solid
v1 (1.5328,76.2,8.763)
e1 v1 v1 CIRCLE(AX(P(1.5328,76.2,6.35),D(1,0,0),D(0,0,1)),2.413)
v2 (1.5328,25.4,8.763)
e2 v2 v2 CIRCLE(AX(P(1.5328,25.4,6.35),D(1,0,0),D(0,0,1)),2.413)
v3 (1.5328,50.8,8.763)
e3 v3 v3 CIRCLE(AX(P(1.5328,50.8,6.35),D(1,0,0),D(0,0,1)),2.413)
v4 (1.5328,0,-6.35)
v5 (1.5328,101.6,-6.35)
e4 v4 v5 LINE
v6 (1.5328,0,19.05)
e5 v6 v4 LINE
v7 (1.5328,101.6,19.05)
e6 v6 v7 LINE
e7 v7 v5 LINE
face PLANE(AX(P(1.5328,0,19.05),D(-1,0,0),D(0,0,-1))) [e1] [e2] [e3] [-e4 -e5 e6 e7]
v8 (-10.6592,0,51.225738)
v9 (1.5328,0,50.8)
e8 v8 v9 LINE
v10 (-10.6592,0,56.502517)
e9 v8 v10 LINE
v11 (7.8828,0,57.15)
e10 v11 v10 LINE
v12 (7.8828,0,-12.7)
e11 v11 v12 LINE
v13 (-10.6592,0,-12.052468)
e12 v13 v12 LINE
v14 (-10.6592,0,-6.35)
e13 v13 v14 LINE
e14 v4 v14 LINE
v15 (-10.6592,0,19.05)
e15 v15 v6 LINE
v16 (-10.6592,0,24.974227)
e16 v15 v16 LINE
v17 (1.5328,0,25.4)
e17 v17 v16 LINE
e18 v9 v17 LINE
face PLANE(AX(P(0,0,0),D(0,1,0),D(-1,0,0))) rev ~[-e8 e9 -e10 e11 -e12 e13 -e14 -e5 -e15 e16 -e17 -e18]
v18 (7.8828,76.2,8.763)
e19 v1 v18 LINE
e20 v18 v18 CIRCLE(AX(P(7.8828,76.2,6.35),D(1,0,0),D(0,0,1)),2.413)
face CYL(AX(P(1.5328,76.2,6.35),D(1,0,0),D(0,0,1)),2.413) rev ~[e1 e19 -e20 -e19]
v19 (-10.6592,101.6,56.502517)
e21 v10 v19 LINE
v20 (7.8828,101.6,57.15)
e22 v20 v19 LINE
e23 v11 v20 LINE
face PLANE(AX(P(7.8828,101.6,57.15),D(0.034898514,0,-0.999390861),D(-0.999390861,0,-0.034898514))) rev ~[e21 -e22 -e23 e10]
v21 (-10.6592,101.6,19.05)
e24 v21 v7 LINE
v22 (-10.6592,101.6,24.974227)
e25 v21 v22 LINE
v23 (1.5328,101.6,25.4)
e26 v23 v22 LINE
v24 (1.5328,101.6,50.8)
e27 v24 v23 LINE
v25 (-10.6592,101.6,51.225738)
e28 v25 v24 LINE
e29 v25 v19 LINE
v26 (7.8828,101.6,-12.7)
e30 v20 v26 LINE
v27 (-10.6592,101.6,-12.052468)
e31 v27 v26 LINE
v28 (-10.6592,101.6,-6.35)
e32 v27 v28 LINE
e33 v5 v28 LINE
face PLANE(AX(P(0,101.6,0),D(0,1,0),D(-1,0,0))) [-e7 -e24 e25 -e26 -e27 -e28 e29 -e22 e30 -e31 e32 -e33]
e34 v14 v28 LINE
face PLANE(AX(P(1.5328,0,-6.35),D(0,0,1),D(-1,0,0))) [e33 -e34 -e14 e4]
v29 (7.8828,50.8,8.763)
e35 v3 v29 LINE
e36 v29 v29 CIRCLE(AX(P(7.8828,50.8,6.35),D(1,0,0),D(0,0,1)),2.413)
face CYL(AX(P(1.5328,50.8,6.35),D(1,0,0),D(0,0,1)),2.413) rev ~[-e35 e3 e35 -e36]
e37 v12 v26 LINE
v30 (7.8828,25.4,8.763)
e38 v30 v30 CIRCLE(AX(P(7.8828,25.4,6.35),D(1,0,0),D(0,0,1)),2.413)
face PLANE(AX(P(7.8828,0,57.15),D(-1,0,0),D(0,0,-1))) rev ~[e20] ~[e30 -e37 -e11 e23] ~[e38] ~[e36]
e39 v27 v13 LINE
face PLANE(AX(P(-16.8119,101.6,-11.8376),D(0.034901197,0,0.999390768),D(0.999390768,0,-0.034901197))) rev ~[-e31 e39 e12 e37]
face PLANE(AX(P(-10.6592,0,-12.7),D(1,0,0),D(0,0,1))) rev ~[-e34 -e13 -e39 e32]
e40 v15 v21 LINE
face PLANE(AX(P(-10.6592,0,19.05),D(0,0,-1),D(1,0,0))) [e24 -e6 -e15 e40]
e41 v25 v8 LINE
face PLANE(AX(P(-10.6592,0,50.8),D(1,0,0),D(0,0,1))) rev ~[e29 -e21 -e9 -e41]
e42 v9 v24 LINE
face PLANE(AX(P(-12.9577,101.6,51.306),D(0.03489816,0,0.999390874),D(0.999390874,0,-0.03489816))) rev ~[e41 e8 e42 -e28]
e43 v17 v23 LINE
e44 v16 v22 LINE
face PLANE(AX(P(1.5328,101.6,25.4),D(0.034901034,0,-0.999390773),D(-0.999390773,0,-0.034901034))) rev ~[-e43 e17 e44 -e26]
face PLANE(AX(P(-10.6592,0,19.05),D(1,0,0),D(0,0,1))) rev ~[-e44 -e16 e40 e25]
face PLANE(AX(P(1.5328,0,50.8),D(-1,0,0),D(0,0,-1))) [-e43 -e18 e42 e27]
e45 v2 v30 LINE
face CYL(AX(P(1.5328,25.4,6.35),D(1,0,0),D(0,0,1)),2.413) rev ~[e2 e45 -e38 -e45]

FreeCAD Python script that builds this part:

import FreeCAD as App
import Part
import Sketcher
from FreeCAD import Vector
Q = App.Units.Quantity

doc = App.newDocument("Part")
params = doc.addObject("Spreadsheet::Sheet", "Params")
for row, (alias, value) in enumerate([
    ("sketch1_height", "1 in"),
    ("sketch1_width", "0.73 in"),
    ("sketch1_height2", "0.25 in"),
    ("pad1_length", "4 in"),
    ("sketch2_diameter", "0.19 in"),
    ("hole_diameter", "0.19 in"),
    ("hole_depth", "1 in"),
    ("pocket1_length", "4.375 in"),
    ("pocket2_length", "4.6875 in"),
    ("pocket3_length", "7.75 in"),
    ("pocket4_length", "13.1875 in"),
], start=1):
    params.set(f"A{row}", alias)
    params.set(f"B{row}", "=" + value)
    params.setAlias(f"B{row}", alias)

body = doc.addObject("PartDesign::Body", "Body")

# Sketch on XZ plane
sketch1 = doc.addObject("Sketcher::SketchObject", "Sketch")
body.addObject(sketch1)
sketch1.AttachmentSupport = (doc.XZ_Plane, [""])
sketch1.MapMode = "FlatFace"
sketch1.addGeometry([
    Part.LineSegment(Vector(-11, 51, 0), Vector(-11, 57, 0)),  # 0
    Part.LineSegment(Vector(-11, 57, 0), Vector(8, 57, 0)),  # 1
    Part.LineSegment(Vector(8, 57, 0), Vector(8, -13, 0)),  # 2
    Part.LineSegment(Vector(8, -13, 0), Vector(-11, -13, 0)),  # 3
    Part.LineSegment(Vector(-11, -13, 0), Vector(-11, -6, 0)),  # 4
    Part.LineSegment(Vector(-11, -6, 0), Vector(2, -6, 0)),  # 5
    Part.LineSegment(Vector(2, -6, 0), Vector(2, 19, 0)),  # 6
    Part.LineSegment(Vector(2, 19, 0), Vector(-11, 19, 0)),  # 7
    Part.LineSegment(Vector(-11, 19, 0), Vector(-11, 25, 0)),  # 8
    Part.LineSegment(Vector(-11, 25, 0), Vector(2, 25, 0)),  # 9
    Part.LineSegment(Vector(2, 25, 0), Vector(2, 51, 0)),  # 10
    Part.LineSegment(Vector(2, 51, 0), Vector(-11, 51, 0)),  # 11
], False)
sketch1.addConstraint([
    Sketcher.Constraint("Coincident", 0, 2, 1, 1),
    Sketcher.Constraint("Coincident", 1, 2, 2, 1),
    Sketcher.Constraint("Coincident", 2, 2, 3, 1),
    Sketcher.Constraint("Coincident", 3, 2, 4, 1),
    Sketcher.Constraint("Coincident", 4, 2, 5, 1),
    Sketcher.Constraint("Coincident", 5, 2, 6, 1),
    Sketcher.Constraint("Coincident", 6, 2, 7, 1),
    Sketcher.Constraint("Coincident", 7, 2, 8, 1),
    Sketcher.Constraint("Coincident", 8, 2, 9, 1),
    Sketcher.Constraint("Coincident", 9, 2, 10, 1),
    Sketcher.Constraint("Coincident", 10, 2, 11, 1),
    Sketcher.Constraint("Coincident", 11, 2, 0, 1),
    Sketcher.Constraint("Vertical", 0),
    Sketcher.Constraint("Horizontal", 1),
    Sketcher.Constraint("Vertical", 2),
    Sketcher.Constraint("Horizontal", 3),
    Sketcher.Constraint("Vertical", 4),
    Sketcher.Constraint("Horizontal", 5),
    Sketcher.Constraint("Vertical", 6),
    Sketcher.Constraint("Horizontal", 7),
    Sketcher.Constraint("Vertical", 8),
    Sketcher.Constraint("Horizontal", 9),
    Sketcher.Constraint("Vertical", 10),
    Sketcher.Constraint("Horizontal", 11),
    Sketcher.Constraint("Vertical", 0, 2, 3, 2),
    Sketcher.Constraint("Vertical", 4, 2, 7, 2),
    Sketcher.Constraint("Vertical", 6, 2, 9, 2),
    Sketcher.Constraint("Equal", 0, 4),
    Sketcher.Constraint("Equal", 4, 8),
    Sketcher.Constraint("Equal", 6, 10),
    Sketcher.Constraint("DistanceY", 6, 1, 6, 2, Q("1 in")),
    Sketcher.Constraint("DistanceY", -1, 1, 8, 2, Q("1 in")),
    Sketcher.Constraint("DistanceX", 1, 1, 1, 2, Q("0.73 in")),
    Sketcher.Constraint("DistanceY", 0, 1, 0, 2, Q("0.25 in")),
    Sketcher.Constraint("DistanceX", 5, 2, 2, 2, Q("0.25 in")),
    Sketcher.Constraint("DistanceX", 0, 2, -1, 1, Q("10.6592 mm")),
])
sketch1.setExpression("Constraints[30]", "Params.sketch1_height")
sketch1.setExpression("Constraints[32]", "Params.sketch1_width")
sketch1.setExpression("Constraints[33]", "Params.sketch1_height2")
pad1 = doc.addObject("PartDesign::Pad", "Pad")
body.addObject(pad1)
pad1.Profile = sketch1
pad1.setExpression("Length", "Params.pad1_length")
pad1.Reversed = True

# Sketch on YZ plane
sketch2 = doc.addObject("Sketcher::SketchObject", "Sketch001")
body.addObject(sketch2)
sketch2.AttachmentSupport = (doc.YZ_Plane, [""])
sketch2.MapMode = "FlatFace"
sketch2.AttachmentOffset = App.Placement(Vector(0, 0, 1.5328), App.Rotation())
sketch2.addGeometry([
    Part.Circle(Vector(25.4, 6.3, 0), Vector(0, 0, 1), 2.4),
    Part.Circle(Vector(50.8, 6.3, 0), Vector(0, 0, 1), 2.4),
    Part.Circle(Vector(76.2, 6.3, 0), Vector(0, 0, 1), 2.4),
], False)
sketch2.addConstraint([
    Sketcher.Constraint("Equal", 0, 1),
    Sketcher.Constraint("Equal", 1, 2),
    Sketcher.Constraint("Horizontal", 0, 3, 1, 3),
    Sketcher.Constraint("Horizontal", 1, 3, 2, 3),
    Sketcher.Constraint("Diameter", 0, Q("0.19 in")),
    Sketcher.Constraint("DistanceX", -1, 1, 0, 3, Q("1 in")),
    Sketcher.Constraint("DistanceX", -1, 1, 1, 3, Q("2 in")),
    Sketcher.Constraint("DistanceX", -1, 1, 2, 3, Q("3 in")),
    Sketcher.Constraint("DistanceY", -1, 1, 0, 3, Q("0.25 in")),
])
sketch2.setExpression("Constraints[4]", "Params.sketch2_diameter")
doc.recompute()
hole = doc.addObject("PartDesign::Hole", "Hole")
body.addObject(hole)
hole.Profile = sketch2
hole.ThreadType = "None"
hole.setExpression("Diameter", "Params.hole_diameter")
hole.DepthType = "Dimension"
hole.setExpression("Depth", "Params.hole_depth")
hole.DrillPoint = "Angled"
hole.DrillPointAngle = 118
hole.Reversed = True

# Sketch on XZ plane
sketch3 = doc.addObject("Sketcher::SketchObject", "Sketch002")
body.addObject(sketch3)
sketch3.AttachmentSupport = (doc.XZ_Plane, [""])
sketch3.MapMode = "FlatFace"
sketch3.AttachmentOffset = App.Placement(Vector(0, 0, -4 * 25.4), App.Rotation())
sketch3.addGeometry([
    Part.LineSegment(Vector(-10.79, 25.4, 0), Vector(1.53, 25.4, 0)),
    Part.LineSegment(Vector(1.53, 25.4, 0), Vector(-10.79, 24.97, 0)),
    Part.LineSegment(Vector(-10.79, 24.97, 0), Vector(-10.79, 25.4, 0)),
], False)
sketch3.addConstraint([
    Sketcher.Constraint("Coincident", 0, 2, 1, 1),
    Sketcher.Constraint("Coincident", 1, 2, 2, 1),
    Sketcher.Constraint("Coincident", 2, 2, 0, 1),
    Sketcher.Constraint("Horizontal", 0),
    Sketcher.Constraint("Vertical", 2),
    Sketcher.Constraint("DistanceY", -1, 1, 0, 2, Q("1 in")),
    Sketcher.Constraint("Angle", 1, Q("-178 deg")),
    Sketcher.Constraint("DistanceX", 0, 1, 0, 2, Q("12.3245 mm")),
    Sketcher.Constraint("DistanceX", -1, 1, 0, 2, Q("1.5328 mm")),
])
pocket1 = doc.addObject("PartDesign::Pocket", "Pocket")
body.addObject(pocket1)
pocket1.Profile = sketch3
pocket1.setExpression("Length", "Params.pocket1_length")
pocket1.Reversed = True

# Sketch on XZ plane
sketch4 = doc.addObject("Sketcher::SketchObject", "Sketch003")
body.addObject(sketch4)
sketch4.AttachmentSupport = (doc.XZ_Plane, [""])
sketch4.MapMode = "FlatFace"
sketch4.AttachmentOffset = App.Placement(Vector(0, 0, -4 * 25.4), App.Rotation())
sketch4.addGeometry([
    Part.LineSegment(Vector(-13, 51.3, 0), Vector(1.5, 50.8, 0)),
    Part.LineSegment(Vector(1.5, 50.8, 0), Vector(-13, 50.8, 0)),
    Part.LineSegment(Vector(-13, 50.8, 0), Vector(-13, 51.3, 0)),
], False)
sketch4.addConstraint([
    Sketcher.Constraint("Coincident", 0, 2, 1, 1),
    Sketcher.Constraint("Coincident", 1, 2, 2, 1),
    Sketcher.Constraint("Coincident", 2, 2, 0, 1),
    Sketcher.Constraint("Horizontal", 1),
    Sketcher.Constraint("Vertical", 2),
    Sketcher.Constraint("Angle", 0, Q("-2 deg")),
    Sketcher.Constraint("DistanceY", -1, 1, 0, 2, Q("2 in")),
    Sketcher.Constraint("DistanceX", 1, 2, 1, 1, Q("0.5705 in")),
    Sketcher.Constraint("DistanceX", -1, 1, 0, 2, Q("1.5328 mm")),
])
pocket2 = doc.addObject("PartDesign::Pocket", "Pocket001")
body.addObject(pocket2)
pocket2.Profile = sketch4
pocket2.setExpression("Length", "Params.pocket2_length")
pocket2.Reversed = True

# Sketch on XZ plane
sketch5 = doc.addObject("Sketcher::SketchObject", "Sketch004")
body.addObject(sketch5)
sketch5.AttachmentSupport = (doc.XZ_Plane, [""])
sketch5.MapMode = "FlatFace"
sketch5.AttachmentOffset = App.Placement(Vector(0, 0, -4 * 25.4), App.Rotation())
sketch5.addGeometry([
    Part.LineSegment(Vector(-13, 57.1, 0), Vector(7.9, 57.1, 0)),
    Part.LineSegment(Vector(7.9, 57.1, 0), Vector(-13, 56.4, 0)),
    Part.LineSegment(Vector(-13, 56.4, 0), Vector(-13, 57.1, 0)),
], False)
sketch5.addConstraint([
    Sketcher.Constraint("Coincident", 0, 2, 1, 1),
    Sketcher.Constraint("Coincident", 1, 2, 2, 1),
    Sketcher.Constraint("Coincident", 2, 2, 0, 1),
    Sketcher.Constraint("Horizontal", 0),
    Sketcher.Constraint("Angle", 1, Q("-178 deg")),
    Sketcher.Constraint("DistanceY", -1, 1, 0, 2, Q("2.25 in")),
    Sketcher.Constraint("DistanceX", 0, 1, 0, 2, Q("0.8222 in")),
    Sketcher.Constraint("Distance", 1, Q("20.9379 mm")),
    Sketcher.Constraint("DistanceX", -1, 1, 0, 2, Q("7.8828 mm")),
])
pocket3 = doc.addObject("PartDesign::Pocket", "Pocket002")
body.addObject(pocket3)
pocket3.Profile = sketch5
pocket3.setExpression("Length", "Params.pocket3_length")
pocket3.Reversed = True

# Sketch on XZ plane
sketch6 = doc.addObject("Sketcher::SketchObject", "Sketch005")
body.addObject(sketch6)
sketch6.AttachmentSupport = (doc.XZ_Plane, [""])
sketch6.MapMode = "FlatFace"
sketch6.AttachmentOffset = App.Placement(Vector(0, 0, -4 * 25.4), App.Rotation())
sketch6.addGeometry([
    Part.LineSegment(Vector(-16.8, -11.8, 0), Vector(7.9, -12.7, 0)),
    Part.LineSegment(Vector(7.9, -12.7, 0), Vector(-16.8, -12.7, 0)),
    Part.LineSegment(Vector(-16.8, -12.7, 0), Vector(-16.8, -11.8, 0)),
], False)
sketch6.addConstraint([
    Sketcher.Constraint("Coincident", 0, 2, 1, 1),
    Sketcher.Constraint("Coincident", 1, 2, 2, 1),
    Sketcher.Constraint("Coincident", 2, 2, 0, 1),
    Sketcher.Constraint("Horizontal", 1),
    Sketcher.Constraint("Vertical", 2),
    Sketcher.Constraint("Angle", 0, Q("-2 deg")),
    Sketcher.Constraint("DistanceY", 0, 2, -1, 1, Q("0.5 in")),
    Sketcher.Constraint("DistanceX", 1, 2, 1, 1, Q("24.6947 mm")),
    Sketcher.Constraint("DistanceX", -1, 1, 0, 2, Q("7.8828 mm")),
])
pocket4 = doc.addObject("PartDesign::Pocket", "Pocket003")
body.addObject(pocket4)
pocket4.Profile = sketch6
pocket4.setExpression("Length", "Params.pocket4_length")
pocket4.Reversed = True

doc.recompute()
